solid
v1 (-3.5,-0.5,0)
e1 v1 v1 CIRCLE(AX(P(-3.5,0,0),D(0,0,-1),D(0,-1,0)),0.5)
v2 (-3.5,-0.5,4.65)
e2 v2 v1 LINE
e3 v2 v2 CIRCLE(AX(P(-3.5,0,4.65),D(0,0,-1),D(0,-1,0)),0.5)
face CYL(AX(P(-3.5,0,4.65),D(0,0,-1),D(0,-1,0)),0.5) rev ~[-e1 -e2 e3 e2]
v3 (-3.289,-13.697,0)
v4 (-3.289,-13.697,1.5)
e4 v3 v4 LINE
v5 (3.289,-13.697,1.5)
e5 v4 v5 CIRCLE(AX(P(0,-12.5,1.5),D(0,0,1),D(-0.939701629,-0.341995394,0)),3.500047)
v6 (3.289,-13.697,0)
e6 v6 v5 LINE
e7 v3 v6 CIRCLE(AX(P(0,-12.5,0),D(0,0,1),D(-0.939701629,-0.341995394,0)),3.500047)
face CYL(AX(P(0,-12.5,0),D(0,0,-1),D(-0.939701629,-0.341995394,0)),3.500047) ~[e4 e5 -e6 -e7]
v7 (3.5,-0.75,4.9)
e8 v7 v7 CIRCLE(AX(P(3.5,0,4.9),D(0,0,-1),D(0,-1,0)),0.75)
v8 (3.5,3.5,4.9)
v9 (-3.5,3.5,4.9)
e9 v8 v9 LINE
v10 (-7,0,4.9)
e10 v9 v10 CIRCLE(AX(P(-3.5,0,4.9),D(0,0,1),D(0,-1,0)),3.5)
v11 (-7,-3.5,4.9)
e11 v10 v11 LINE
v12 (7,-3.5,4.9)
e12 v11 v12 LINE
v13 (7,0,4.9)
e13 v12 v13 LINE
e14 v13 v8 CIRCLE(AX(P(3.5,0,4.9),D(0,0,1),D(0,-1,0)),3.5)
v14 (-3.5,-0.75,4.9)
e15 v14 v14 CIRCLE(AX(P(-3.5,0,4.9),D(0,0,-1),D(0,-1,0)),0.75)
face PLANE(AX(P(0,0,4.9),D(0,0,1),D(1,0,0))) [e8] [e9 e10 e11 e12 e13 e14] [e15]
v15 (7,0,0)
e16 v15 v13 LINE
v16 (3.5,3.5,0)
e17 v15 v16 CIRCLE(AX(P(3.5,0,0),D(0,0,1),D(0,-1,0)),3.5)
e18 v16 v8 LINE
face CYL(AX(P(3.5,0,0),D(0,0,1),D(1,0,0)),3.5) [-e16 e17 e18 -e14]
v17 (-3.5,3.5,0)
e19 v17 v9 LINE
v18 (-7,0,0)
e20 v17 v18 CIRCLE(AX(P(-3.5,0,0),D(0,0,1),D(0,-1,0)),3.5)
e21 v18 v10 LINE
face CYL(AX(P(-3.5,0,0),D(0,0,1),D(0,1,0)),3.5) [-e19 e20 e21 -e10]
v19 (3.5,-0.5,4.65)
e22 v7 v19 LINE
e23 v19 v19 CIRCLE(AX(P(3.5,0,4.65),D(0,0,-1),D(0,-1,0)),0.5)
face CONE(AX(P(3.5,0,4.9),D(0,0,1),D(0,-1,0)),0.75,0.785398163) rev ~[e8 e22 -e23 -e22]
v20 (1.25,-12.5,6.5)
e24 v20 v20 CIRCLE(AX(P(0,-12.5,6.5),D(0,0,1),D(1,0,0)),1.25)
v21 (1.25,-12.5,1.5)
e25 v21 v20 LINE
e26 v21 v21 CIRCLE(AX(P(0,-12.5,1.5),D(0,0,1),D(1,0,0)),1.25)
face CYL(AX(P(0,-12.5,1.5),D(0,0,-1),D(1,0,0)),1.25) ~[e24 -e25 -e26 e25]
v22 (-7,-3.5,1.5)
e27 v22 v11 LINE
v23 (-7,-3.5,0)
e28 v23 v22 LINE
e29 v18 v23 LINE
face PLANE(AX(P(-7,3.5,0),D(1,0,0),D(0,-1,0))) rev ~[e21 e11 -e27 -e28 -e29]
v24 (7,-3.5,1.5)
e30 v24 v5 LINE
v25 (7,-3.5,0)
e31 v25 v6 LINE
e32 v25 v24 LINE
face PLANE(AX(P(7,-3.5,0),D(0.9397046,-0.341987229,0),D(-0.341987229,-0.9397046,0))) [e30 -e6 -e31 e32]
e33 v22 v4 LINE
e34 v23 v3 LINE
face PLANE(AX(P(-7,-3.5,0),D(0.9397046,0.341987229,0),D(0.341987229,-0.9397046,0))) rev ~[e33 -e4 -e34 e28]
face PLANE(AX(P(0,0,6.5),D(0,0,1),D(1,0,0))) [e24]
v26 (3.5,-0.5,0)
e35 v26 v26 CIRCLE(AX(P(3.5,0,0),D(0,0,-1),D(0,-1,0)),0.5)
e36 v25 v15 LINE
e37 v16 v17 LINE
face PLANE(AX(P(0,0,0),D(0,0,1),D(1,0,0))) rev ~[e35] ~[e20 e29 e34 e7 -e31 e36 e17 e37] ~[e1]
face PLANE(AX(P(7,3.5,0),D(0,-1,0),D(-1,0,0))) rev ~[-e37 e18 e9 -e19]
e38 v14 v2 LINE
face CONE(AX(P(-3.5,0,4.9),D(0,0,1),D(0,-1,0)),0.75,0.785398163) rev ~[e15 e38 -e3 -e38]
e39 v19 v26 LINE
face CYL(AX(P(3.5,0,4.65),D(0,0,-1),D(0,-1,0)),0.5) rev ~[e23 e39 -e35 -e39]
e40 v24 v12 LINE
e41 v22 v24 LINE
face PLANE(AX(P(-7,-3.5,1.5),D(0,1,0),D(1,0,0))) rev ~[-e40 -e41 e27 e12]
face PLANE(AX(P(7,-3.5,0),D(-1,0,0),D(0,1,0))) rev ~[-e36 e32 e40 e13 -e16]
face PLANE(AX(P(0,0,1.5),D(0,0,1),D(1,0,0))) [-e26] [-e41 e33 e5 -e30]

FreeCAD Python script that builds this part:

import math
import FreeCAD as App
import Part
import Sketcher
Q = App.Units.Quantity


def edges_at(feature, points):
    """Names of the edges that pass closest to the given points."""
    edges = feature.Shape.Edges
    near = lambda p: min(range(len(edges)), key=lambda i: edges[i].distToShape(Part.Vertex(*p))[0])
    return sorted({f"Edge{near(p) + 1}" for p in points})


def add_polygon(sketch, points):
    """Adds a closed chain of lines whose ends are joined by coincident constraints."""
    first, n = sketch.GeometryCount, len(points)
    for a, b in zip(points, points[1:] + points[:1]):
        sketch.addGeometry(Part.LineSegment(App.Vector(*a, 0), App.Vector(*b, 0)), False)
    for i in range(n):
        sketch.addConstraint(Sketcher.Constraint("Coincident", first + i, 2, first + (i + 1) % n, 1))

doc = App.newDocument("Part")
body = doc.addObject("PartDesign::Body", "Body")

sketch1 = body.newObject("Sketcher::SketchObject", "Sketch")
sketch1.AttachmentSupport = (doc.getObject("XY_Plane"), [""])
sketch1.MapMode = "FlatFace"
sketch1.addGeometry([
    Part.LineSegment(App.Vector(3.3, -13.7, 0), App.Vector(7, -3.5, 0)),
    Part.LineSegment(App.Vector(7, -3.5, 0), App.Vector(7, 3.5, 0)),
    Part.LineSegment(App.Vector(7, 3.5, 0), App.Vector(-7, 3.5, 0)),
    Part.LineSegment(App.Vector(-7, 3.5, 0), App.Vector(-7, -3.5, 0)),
    Part.LineSegment(App.Vector(-7, -3.5, 0), App.Vector(-3.3, -13.7, 0)),
    Part.ArcOfCircle(Part.Circle(App.Vector(0, -12.5, 0), App.Vector(0, 0, 1), 3.5), math.radians(-160), math.radians(-20)),
], False)
sketch1.addConstraint([
    Sketcher.Constraint("Coincident", 0, 2, 1, 1),
    Sketcher.Constraint("Coincident", 1, 2, 2, 1),
    Sketcher.Constraint("Coincident", 2, 2, 3, 1),
    Sketcher.Constraint("Coincident", 3, 2, 4, 1),
    Sketcher.Constraint("Tangent", 4, 2, 5, 1),
    Sketcher.Constraint("Tangent", 5, 2, 0, 1),
    Sketcher.Constraint("Vertical", 1),
    Sketcher.Constraint("Horizontal", 2),
    Sketcher.Constraint("Vertical", 3),
    Sketcher.Constraint("Symmetric", 0, 2, 2, 2, -1, 1),
    Sketcher.Constraint("Symmetric", 4, 2, 5, 2, -2),
    Sketcher.Constraint("Radius", 5, Q("3.5 mm")),
    Sketcher.Constraint("DistanceX", 2, 2, 2, 1, Q("14 mm")),
    Sketcher.Constraint("DistanceY", 1, 1, 1, 2, Q("7 mm")),
    Sketcher.Constraint("DistanceY", 5, 3, 0, 2, Q("9 mm")),
])
pad1 = body.newObject("PartDesign::Pad", "Pad")
pad1.Profile = sketch1
pad1.Length = 1.5

sketch2 = body.newObject("Sketcher::SketchObject", "Sketch001")
sketch2.AttachmentSupport = (doc.getObject("XY_Plane"), [""])
sketch2.MapMode = "FlatFace"
sketch2.AttachmentOffset = App.Placement(App.Vector(0, 0, 1.5), App.Rotation())
add_polygon(sketch2, [(7, -4), (7, 4), (-7, 4), (-7, -4)])
sketch2.addConstraint([
    Sketcher.Constraint("Vertical", 0),
    Sketcher.Constraint("Horizontal", 1),
    Sketcher.Constraint("Vertical", 2),
    Sketcher.Constraint("Horizontal", 3),
    Sketcher.Constraint("Symmetric", 0, 2, 2, 2, -1, 1),
    Sketcher.Constraint("DistanceX", 1, 2, 1, 1, Q("14 mm")),
    Sketcher.Constraint("DistanceY", 0, 1, 0, 2, Q("7 mm")),
])
pad2 = body.newObject("PartDesign::Pad", "Pad001")
pad2.Profile = sketch2
pad2.Length = 3.4

sketch3 = body.newObject("Sketcher::SketchObject", "Sketch002")
sketch3.AttachmentSupport = (doc.getObject("XY_Plane"), [""])
sketch3.MapMode = "FlatFace"
sketch3.AttachmentOffset = App.Placement(App.Vector(0, 0, 1.5), App.Rotation())
sketch3.addGeometry(Part.Circle(App.Vector(0, -12.5, 0), App.Vector(0, 0, 1), 1.2), False)
sketch3.addConstraint([
    Sketcher.Constraint("PointOnObject", 0, 3, -2),
    Sketcher.Constraint("Diameter", 0, Q("2.5 mm")),
    Sketcher.Constraint("DistanceY", 0, 3, -1, 1, Q("12.5 mm")),
])
pad3 = body.newObject("PartDesign::Pad", "Pad002")
pad3.Profile = sketch3
pad3.Length = 5
doc.recompute()

fillet = body.newObject("PartDesign::Fillet", "Fillet")
fillet.Base = (pad3, edges_at(pad3, [(7, 3.5, 2.45), (-7, 3.5, 2.45)]))
fillet.Radius = 3.5

sketch4 = body.newObject("Sketcher::SketchObject", "Sketch003")
sketch4.AttachmentSupport = (doc.getObject("XY_Plane"), [""])
sketch4.MapMode = "FlatFace"
sketch4.AttachmentOffset = App.Placement(App.Vector(0, 0, 4.9), App.Rotation())
sketch4.addGeometry([
    Part.Circle(App.Vector(-3.5, 0, 0), App.Vector(0, 0, 1), 0.5),
    Part.Circle(App.Vector(3.5, 0, 0), App.Vector(0, 0, 1), 0.5),
], False)
sketch4.addConstraint([
    Sketcher.Constraint("Equal", 0, 1),
    Sketcher.Constraint("Symmetric", 0, 3, 1, 3, -1, 1),
    Sketcher.Constraint("PointOnObject", 0, 3, -1),
    Sketcher.Constraint("Diameter", 0, Q("1 mm")),
    Sketcher.Constraint("DistanceX", 0, 3, 1, 3, Q("7 mm")),
])
doc.recompute()
hole = body.newObject("PartDesign::Hole", "Hole")
hole.Profile = sketch4
hole.ThreadType = "None"
hole.Diameter = 1
hole.DepthType = "ThroughAll"
hole.HoleCutType = "Countersink"
hole.HoleCutDiameter = 1.5
hole.HoleCutCountersinkAngle = 90

doc.recompute()
